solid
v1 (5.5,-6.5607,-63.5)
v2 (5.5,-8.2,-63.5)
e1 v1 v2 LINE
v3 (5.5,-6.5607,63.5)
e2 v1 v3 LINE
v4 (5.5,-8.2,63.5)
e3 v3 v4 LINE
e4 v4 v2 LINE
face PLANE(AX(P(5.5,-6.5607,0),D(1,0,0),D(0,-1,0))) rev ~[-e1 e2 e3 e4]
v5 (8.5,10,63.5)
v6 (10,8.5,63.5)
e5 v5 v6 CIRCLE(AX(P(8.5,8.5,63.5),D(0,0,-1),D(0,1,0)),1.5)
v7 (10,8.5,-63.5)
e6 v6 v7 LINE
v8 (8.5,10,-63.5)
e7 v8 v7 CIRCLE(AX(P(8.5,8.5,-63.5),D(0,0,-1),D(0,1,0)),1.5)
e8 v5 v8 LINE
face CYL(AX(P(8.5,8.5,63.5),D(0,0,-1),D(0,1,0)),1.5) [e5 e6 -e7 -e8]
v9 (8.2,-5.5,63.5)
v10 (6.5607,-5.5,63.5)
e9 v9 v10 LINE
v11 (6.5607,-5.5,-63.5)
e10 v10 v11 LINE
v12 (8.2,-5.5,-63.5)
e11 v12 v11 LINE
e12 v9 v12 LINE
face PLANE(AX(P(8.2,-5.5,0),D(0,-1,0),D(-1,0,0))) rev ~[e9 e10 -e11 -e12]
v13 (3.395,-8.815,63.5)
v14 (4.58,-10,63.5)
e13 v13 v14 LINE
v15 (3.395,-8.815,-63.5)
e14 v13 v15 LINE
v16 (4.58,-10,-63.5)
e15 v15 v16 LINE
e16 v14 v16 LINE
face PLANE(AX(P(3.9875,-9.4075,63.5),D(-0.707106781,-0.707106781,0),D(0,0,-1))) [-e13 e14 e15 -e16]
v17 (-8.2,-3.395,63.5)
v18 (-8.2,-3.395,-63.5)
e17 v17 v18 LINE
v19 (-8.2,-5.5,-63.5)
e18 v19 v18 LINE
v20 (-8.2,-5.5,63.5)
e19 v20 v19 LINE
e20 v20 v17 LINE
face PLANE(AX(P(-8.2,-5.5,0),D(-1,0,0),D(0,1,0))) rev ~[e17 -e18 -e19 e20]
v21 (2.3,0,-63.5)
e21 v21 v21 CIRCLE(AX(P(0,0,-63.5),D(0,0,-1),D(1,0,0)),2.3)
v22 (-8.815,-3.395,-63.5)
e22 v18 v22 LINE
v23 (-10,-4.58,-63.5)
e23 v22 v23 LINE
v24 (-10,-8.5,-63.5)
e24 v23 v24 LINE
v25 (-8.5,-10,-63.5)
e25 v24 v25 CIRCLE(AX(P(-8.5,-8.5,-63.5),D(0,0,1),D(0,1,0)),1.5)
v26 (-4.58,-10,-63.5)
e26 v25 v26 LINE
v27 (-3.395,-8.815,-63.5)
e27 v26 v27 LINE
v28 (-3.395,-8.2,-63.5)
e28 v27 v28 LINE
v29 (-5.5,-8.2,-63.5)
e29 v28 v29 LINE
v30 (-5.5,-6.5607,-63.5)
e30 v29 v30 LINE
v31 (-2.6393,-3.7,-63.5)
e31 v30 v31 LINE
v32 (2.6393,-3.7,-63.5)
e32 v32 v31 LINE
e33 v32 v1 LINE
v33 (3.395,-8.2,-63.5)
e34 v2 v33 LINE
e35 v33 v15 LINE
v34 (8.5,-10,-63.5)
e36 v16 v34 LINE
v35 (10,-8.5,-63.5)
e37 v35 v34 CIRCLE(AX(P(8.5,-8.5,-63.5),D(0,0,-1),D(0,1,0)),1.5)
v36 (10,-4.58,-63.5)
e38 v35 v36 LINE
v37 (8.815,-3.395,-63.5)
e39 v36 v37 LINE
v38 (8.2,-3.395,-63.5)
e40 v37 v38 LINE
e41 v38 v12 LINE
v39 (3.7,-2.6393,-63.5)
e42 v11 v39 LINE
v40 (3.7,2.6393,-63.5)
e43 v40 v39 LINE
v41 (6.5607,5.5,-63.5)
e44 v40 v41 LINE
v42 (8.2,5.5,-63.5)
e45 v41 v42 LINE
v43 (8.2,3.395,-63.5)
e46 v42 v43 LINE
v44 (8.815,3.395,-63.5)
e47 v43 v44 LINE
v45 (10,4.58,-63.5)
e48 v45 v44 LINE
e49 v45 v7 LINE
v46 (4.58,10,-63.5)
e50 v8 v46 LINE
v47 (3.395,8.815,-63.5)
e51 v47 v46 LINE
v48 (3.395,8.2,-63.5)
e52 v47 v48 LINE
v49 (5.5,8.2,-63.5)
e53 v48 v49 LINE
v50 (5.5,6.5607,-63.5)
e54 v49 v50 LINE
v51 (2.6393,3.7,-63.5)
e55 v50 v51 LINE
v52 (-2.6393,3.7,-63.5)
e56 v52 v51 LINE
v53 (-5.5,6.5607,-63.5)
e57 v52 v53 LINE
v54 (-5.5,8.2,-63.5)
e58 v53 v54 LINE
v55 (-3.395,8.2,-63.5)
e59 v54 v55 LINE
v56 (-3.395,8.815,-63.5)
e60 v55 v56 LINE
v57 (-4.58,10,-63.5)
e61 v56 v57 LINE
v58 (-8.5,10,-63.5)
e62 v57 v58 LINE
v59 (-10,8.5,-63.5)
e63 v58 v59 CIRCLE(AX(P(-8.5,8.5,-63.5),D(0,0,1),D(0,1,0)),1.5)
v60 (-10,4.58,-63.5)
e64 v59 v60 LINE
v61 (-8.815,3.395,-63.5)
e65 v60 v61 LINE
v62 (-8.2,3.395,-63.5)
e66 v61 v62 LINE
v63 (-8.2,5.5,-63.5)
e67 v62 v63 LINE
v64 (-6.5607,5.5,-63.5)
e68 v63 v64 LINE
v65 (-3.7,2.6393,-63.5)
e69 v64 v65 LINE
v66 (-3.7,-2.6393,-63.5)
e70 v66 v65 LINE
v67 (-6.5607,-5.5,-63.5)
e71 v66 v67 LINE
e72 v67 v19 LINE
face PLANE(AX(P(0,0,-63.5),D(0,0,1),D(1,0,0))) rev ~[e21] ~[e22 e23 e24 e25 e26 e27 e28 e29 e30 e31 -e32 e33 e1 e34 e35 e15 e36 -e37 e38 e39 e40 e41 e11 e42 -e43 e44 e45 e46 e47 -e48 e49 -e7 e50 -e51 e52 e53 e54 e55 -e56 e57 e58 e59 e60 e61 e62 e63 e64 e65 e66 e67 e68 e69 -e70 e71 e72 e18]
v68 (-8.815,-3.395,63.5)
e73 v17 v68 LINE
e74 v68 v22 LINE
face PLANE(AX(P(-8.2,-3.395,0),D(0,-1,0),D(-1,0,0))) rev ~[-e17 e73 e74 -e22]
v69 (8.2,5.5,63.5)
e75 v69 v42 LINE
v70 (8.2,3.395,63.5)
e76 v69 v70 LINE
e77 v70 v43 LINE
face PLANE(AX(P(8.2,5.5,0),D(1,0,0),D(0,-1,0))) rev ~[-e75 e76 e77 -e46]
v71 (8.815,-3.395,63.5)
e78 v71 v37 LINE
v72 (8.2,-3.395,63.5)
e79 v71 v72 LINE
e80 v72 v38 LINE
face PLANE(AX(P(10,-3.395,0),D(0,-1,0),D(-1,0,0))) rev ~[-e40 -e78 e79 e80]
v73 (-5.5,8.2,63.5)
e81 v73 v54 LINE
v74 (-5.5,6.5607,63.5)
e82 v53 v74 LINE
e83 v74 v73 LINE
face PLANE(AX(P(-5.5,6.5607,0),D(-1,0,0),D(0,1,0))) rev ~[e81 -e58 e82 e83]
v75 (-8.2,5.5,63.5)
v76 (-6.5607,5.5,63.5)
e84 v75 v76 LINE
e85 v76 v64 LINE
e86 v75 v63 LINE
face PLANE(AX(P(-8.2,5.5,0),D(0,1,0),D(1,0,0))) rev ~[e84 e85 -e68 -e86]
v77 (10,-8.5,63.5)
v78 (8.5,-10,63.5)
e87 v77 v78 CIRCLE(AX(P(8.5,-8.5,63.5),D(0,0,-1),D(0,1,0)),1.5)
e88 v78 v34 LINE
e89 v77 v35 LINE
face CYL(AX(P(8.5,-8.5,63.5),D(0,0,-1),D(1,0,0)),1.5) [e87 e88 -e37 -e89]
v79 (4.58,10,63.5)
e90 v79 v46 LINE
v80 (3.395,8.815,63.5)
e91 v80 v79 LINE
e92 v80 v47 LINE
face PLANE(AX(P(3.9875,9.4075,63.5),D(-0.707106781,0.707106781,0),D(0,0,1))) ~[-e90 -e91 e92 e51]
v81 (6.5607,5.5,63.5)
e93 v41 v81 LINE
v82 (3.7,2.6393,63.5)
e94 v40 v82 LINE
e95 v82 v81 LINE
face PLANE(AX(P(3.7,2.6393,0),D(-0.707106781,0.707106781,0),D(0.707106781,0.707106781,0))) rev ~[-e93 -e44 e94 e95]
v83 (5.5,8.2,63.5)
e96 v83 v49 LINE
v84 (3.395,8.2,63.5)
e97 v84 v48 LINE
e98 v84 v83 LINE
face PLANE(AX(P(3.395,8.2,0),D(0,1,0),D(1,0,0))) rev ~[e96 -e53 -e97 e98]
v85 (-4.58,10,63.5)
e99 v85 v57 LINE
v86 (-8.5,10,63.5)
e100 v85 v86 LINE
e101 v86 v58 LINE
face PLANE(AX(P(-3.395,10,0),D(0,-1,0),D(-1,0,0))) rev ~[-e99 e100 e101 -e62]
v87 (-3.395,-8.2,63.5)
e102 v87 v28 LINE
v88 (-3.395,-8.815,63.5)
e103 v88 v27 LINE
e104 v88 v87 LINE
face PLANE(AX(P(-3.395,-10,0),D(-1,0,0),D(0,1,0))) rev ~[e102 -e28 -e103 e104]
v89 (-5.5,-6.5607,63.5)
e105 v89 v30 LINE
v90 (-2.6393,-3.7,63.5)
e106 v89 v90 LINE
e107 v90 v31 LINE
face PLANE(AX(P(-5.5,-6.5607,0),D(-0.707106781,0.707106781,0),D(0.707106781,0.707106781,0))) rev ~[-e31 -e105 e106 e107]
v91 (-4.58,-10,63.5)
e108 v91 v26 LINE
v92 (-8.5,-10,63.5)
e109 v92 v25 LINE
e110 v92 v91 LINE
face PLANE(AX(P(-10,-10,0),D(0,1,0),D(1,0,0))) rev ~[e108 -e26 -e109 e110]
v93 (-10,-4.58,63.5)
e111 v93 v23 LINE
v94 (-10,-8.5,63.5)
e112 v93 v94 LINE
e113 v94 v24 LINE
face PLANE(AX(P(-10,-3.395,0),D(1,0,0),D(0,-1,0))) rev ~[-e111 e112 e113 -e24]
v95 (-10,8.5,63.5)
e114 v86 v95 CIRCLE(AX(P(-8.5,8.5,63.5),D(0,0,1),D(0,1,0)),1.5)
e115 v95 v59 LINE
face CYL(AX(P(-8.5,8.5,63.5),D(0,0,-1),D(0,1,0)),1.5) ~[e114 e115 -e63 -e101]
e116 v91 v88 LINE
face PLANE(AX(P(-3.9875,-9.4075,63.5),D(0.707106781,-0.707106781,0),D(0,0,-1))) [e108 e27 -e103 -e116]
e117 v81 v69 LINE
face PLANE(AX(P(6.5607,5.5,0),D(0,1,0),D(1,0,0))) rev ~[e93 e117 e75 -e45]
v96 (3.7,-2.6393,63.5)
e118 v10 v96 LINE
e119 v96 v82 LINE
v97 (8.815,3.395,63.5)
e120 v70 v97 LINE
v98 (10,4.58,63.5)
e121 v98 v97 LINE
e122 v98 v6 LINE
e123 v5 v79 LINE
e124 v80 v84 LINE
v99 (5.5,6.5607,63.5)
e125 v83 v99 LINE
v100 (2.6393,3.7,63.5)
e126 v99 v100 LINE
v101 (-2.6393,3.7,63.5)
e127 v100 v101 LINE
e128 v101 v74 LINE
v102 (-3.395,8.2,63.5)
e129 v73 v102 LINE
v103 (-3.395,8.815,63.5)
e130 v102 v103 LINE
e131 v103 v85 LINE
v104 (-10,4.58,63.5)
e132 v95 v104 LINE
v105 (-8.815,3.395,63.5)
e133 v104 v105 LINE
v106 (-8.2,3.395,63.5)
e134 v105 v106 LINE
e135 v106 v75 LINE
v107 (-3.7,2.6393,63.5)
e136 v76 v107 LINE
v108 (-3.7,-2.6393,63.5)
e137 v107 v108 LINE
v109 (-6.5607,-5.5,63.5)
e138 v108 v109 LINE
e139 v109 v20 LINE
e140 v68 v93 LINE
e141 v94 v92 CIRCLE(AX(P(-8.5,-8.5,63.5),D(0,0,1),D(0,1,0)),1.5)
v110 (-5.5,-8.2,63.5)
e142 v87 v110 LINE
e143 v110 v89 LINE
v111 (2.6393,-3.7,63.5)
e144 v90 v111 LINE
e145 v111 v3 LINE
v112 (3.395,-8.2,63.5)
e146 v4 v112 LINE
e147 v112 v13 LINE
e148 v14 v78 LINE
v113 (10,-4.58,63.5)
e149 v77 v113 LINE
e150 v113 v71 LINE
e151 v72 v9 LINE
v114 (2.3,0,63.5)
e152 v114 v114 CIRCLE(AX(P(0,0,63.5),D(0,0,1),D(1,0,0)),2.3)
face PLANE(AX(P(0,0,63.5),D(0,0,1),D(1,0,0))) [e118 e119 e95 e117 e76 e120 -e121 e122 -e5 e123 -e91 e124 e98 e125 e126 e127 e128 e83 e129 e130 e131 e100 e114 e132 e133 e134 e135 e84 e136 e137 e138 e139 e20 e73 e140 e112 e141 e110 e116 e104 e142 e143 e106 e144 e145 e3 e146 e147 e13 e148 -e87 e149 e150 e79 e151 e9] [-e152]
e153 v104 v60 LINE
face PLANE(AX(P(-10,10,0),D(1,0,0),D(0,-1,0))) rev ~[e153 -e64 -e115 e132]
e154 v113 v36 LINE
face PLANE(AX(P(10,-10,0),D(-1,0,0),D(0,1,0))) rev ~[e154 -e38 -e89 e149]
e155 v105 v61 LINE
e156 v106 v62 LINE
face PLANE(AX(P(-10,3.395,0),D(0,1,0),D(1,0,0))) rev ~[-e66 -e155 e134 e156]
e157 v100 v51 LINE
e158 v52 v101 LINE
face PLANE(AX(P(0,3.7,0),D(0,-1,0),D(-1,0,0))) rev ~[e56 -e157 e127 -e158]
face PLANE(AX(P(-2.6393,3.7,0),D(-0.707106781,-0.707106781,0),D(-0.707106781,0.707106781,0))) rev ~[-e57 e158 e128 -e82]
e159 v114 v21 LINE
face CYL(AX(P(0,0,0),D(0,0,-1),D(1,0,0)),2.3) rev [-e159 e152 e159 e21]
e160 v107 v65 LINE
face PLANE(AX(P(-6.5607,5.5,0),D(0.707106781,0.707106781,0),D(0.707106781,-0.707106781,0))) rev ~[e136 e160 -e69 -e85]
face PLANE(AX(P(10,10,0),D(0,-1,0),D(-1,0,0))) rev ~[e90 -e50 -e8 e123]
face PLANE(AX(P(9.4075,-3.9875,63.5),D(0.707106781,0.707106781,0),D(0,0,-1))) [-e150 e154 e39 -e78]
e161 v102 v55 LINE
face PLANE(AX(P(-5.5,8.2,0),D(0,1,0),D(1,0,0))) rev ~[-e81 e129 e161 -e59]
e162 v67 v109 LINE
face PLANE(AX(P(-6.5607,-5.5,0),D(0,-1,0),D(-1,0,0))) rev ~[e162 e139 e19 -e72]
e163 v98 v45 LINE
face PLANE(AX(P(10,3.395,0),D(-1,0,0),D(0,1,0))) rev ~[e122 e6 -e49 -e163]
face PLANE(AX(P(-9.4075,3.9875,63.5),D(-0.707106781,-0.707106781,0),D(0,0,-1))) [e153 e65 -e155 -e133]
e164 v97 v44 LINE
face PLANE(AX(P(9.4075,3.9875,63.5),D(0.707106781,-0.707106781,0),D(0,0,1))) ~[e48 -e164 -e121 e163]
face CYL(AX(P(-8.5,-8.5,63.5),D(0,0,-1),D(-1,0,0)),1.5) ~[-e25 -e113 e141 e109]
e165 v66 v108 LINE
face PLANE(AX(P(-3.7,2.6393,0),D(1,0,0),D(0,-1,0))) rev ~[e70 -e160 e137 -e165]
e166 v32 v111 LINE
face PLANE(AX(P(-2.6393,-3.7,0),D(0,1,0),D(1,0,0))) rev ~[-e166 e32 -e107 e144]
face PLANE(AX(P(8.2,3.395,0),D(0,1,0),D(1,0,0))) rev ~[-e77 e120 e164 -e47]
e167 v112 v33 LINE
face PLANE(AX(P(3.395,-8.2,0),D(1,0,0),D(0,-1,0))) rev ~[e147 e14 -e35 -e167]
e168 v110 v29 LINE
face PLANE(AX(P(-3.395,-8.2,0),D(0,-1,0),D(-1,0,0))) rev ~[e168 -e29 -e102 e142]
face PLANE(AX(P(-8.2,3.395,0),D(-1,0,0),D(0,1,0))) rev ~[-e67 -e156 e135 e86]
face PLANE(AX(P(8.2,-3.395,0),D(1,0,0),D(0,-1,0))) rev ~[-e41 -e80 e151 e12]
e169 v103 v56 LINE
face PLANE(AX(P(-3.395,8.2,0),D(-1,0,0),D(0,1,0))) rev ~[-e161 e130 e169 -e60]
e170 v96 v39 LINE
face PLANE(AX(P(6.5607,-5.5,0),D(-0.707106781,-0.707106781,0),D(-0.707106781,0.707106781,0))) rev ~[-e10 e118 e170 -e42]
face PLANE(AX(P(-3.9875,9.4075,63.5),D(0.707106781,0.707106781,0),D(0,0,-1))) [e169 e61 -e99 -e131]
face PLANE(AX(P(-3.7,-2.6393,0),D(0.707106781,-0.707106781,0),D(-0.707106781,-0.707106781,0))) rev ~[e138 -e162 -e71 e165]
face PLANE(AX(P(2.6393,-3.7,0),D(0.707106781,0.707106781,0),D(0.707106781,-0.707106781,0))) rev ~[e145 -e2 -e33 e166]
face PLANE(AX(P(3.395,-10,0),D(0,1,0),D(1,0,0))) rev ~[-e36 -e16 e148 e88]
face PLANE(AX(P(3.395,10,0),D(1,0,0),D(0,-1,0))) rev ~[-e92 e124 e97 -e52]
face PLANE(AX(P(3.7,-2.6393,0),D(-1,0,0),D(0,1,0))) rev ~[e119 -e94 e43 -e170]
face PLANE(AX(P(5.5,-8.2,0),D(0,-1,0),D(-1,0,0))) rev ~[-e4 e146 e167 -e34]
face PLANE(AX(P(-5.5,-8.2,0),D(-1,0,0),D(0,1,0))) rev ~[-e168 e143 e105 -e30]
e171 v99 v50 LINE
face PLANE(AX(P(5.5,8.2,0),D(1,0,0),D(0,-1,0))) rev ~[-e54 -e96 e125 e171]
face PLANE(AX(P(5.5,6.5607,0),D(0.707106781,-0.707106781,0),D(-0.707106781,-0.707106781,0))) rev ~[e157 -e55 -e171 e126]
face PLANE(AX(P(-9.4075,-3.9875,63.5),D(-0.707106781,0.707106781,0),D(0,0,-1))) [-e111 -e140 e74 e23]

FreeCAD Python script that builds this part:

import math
import FreeCAD as App
import Part
import Sketcher
from FreeCAD import Vector
Q = App.Units.Quantity


def edges_at(feature, points):
    """Names of the edges that pass closest to the given points."""
    edges = feature.Shape.Edges
    near = lambda p: min(range(len(edges)), key=lambda i: edges[i].distToShape(Part.Vertex(*p))[0])
    return sorted({f"Edge{near(p) + 1}" for p in points})

doc = App.newDocument("Part")
body = doc.addObject("PartDesign::Body", "Body")

# Sketch on XY plane
sketch1 = body.newObject("Sketcher::SketchObject", "Sketch")
sketch1.AttachmentSupport = (doc.getObject("XY_Plane"), [""])
sketch1.MapMode = "FlatFace"
sketch1.addGeometry([
    Part.LineSegment(Vector(0, 2.3, 0), Vector(0, 3.7, 0)),  # 0
    Part.LineSegment(Vector(0, 3.7, 0), Vector(-2.6393, 3.7, 0)),  # 1
    Part.LineSegment(Vector(-2.6393, 3.7, 0), Vector(-5.5, 6.5607, 0)),  # 2
    Part.LineSegment(Vector(-5.5, 6.5607, 0), Vector(-5.5, 8.2, 0)),  # 3
    Part.LineSegment(Vector(-5.5, 8.2, 0), Vector(-3.395, 8.2, 0)),  # 4
    Part.LineSegment(Vector(-3.395, 8.2, 0), Vector(-3.395, 10, 0)),  # 5
    Part.LineSegment(Vector(-3.395, 10, 0), Vector(-10, 10, 0)),  # 6
    Part.LineSegment(Vector(-10, 10, 0), Vector(-10, 3.395, 0)),  # 7
    Part.LineSegment(Vector(-10, 3.395, 0), Vector(-8.2, 3.395, 0)),  # 8
    Part.LineSegment(Vector(-8.2, 3.395, 0), Vector(-8.2, 5.5, 0)),  # 9
    Part.LineSegment(Vector(-8.2, 5.5, 0), Vector(-6.5607, 5.5, 0)),  # 10
    Part.LineSegment(Vector(-6.5607, 5.5, 0), Vector(-3.7, 2.6393, 0)),  # 11
    Part.LineSegment(Vector(-3.7, 2.6393, 0), Vector(-3.7, 0, 0)),  # 12
    Part.LineSegment(Vector(-3.7, 0, 0), Vector(-2.3, 0, 0)),  # 13
    Part.ArcOfCircle(Part.Circle(Vector(0, 0, 0), Vector(0, 0, 1), 2.3), math.radians(90), math.radians(180)),  # 14
], False)
sketch1.addConstraint([
    Sketcher.Constraint("Coincident", 0, 2, 1, 1),
    Sketcher.Constraint("Coincident", 1, 2, 2, 1),
    Sketcher.Constraint("Coincident", 2, 2, 3, 1),
    Sketcher.Constraint("Coincident", 3, 2, 4, 1),
    Sketcher.Constraint("Coincident", 4, 2, 5, 1),
    Sketcher.Constraint("Coincident", 5, 2, 6, 1),
    Sketcher.Constraint("Coincident", 6, 2, 7, 1),
    Sketcher.Constraint("Coincident", 7, 2, 8, 1),
    Sketcher.Constraint("Coincident", 8, 2, 9, 1),
    Sketcher.Constraint("Coincident", 9, 2, 10, 1),
    Sketcher.Constraint("Coincident", 10, 2, 11, 1),
    Sketcher.Constraint("Coincident", 11, 2, 12, 1),
    Sketcher.Constraint("Coincident", 12, 2, 13, 1),
    Sketcher.Constraint("Coincident", 13, 2, 14, 2),
    Sketcher.Constraint("Coincident", 14, 1, 0, 1),
    Sketcher.Constraint("Vertical", 0),
    Sketcher.Constraint("Horizontal", 1),
    Sketcher.Constraint("Vertical", 3),
    Sketcher.Constraint("Horizontal", 4),
    Sketcher.Constraint("Vertical", 5),
    Sketcher.Constraint("Horizontal", 6),
    Sketcher.Constraint("Vertical", 7),
    Sketcher.Constraint("Horizontal", 8),
    Sketcher.Constraint("Vertical", 9),
    Sketcher.Constraint("Horizontal", 10),
    Sketcher.Constraint("Vertical", 12),
    Sketcher.Constraint("Horizontal", 13),
    Sketcher.Constraint("Coincident", 14, 3, -1, 1),
    Sketcher.Constraint("PointOnObject", 0, 2, -2),
    Sketcher.Constraint("PointOnObject", 12, 2, -1),
    Sketcher.Constraint("Parallel", 2, 11),
    Sketcher.Constraint("Equal", 13, 0),
    Sketcher.Constraint("Equal", 10, 3),
    Sketcher.Constraint("Equal", 8, 5),
    Sketcher.Constraint("Equal", 6, 7),
    Sketcher.Constraint("Equal", 4, 9),
    Sketcher.Constraint("Equal", 1, 12),
    Sketcher.Constraint("Radius", 14, Q("2.3 mm")),
    Sketcher.Constraint("Angle", 2, Q("135 deg")),
    Sketcher.Constraint("DistanceX", 8, 1, 8, 2, Q("1.8 mm")),
    Sketcher.Constraint("DistanceY", 1, 2, 5, 2, Q("6.3 mm")),
    Sketcher.Constraint("DistanceX", 2, 2, 11, 2, Q("1.8 mm")),
    Sketcher.Constraint("DistanceX", 13, 1, 13, 2, Q("1.4 mm")),
    Sketcher.Constraint("DistanceX", 4, 1, 4, 2, Q("2.105 mm")),
    Sketcher.Constraint("DistanceX", 1, 2, 1, 1, Q("2.6393 mm")),
])
pad1 = body.newObject("PartDesign::Pad", "Pad")
pad1.Profile = sketch1
pad1.Length = 127
pad1.Midplane = True
doc.recompute()

polarpattern = body.newObject("PartDesign::PolarPattern", "PolarPattern")
polarpattern.Originals = [pad1]
polarpattern.Axis = (doc.getObject("Z_Axis"), [""])
polarpattern.Angle = 360
polarpattern.Occurrences = 4
body.Tip = polarpattern
doc.recompute()

chamfer = body.newObject("PartDesign::Chamfer", "Chamfer")
chamfer.Base = (polarpattern, edges_at(polarpattern, [
    (-3.395, 10, 0),
    (3.395, 10, 0),
    (10, 3.395, 0),
    (10, -3.395, 0),
    (3.395, -10, 0),
    (-3.395, -10, 0),
    (-10, -3.395, 0),
    (-10, 3.395, 0),
]))
chamfer.Size = 1.185
doc.recompute()

fillet = body.newObject("PartDesign::Fillet", "Fillet")
fillet.Base = (chamfer, edges_at(chamfer, [
    (-10, 10, 0),
    (10, 10, 0),
    (-10, -10, 0),
    (10, -10, 0),
]))
fillet.Radius = 1.5

doc.recompute()
